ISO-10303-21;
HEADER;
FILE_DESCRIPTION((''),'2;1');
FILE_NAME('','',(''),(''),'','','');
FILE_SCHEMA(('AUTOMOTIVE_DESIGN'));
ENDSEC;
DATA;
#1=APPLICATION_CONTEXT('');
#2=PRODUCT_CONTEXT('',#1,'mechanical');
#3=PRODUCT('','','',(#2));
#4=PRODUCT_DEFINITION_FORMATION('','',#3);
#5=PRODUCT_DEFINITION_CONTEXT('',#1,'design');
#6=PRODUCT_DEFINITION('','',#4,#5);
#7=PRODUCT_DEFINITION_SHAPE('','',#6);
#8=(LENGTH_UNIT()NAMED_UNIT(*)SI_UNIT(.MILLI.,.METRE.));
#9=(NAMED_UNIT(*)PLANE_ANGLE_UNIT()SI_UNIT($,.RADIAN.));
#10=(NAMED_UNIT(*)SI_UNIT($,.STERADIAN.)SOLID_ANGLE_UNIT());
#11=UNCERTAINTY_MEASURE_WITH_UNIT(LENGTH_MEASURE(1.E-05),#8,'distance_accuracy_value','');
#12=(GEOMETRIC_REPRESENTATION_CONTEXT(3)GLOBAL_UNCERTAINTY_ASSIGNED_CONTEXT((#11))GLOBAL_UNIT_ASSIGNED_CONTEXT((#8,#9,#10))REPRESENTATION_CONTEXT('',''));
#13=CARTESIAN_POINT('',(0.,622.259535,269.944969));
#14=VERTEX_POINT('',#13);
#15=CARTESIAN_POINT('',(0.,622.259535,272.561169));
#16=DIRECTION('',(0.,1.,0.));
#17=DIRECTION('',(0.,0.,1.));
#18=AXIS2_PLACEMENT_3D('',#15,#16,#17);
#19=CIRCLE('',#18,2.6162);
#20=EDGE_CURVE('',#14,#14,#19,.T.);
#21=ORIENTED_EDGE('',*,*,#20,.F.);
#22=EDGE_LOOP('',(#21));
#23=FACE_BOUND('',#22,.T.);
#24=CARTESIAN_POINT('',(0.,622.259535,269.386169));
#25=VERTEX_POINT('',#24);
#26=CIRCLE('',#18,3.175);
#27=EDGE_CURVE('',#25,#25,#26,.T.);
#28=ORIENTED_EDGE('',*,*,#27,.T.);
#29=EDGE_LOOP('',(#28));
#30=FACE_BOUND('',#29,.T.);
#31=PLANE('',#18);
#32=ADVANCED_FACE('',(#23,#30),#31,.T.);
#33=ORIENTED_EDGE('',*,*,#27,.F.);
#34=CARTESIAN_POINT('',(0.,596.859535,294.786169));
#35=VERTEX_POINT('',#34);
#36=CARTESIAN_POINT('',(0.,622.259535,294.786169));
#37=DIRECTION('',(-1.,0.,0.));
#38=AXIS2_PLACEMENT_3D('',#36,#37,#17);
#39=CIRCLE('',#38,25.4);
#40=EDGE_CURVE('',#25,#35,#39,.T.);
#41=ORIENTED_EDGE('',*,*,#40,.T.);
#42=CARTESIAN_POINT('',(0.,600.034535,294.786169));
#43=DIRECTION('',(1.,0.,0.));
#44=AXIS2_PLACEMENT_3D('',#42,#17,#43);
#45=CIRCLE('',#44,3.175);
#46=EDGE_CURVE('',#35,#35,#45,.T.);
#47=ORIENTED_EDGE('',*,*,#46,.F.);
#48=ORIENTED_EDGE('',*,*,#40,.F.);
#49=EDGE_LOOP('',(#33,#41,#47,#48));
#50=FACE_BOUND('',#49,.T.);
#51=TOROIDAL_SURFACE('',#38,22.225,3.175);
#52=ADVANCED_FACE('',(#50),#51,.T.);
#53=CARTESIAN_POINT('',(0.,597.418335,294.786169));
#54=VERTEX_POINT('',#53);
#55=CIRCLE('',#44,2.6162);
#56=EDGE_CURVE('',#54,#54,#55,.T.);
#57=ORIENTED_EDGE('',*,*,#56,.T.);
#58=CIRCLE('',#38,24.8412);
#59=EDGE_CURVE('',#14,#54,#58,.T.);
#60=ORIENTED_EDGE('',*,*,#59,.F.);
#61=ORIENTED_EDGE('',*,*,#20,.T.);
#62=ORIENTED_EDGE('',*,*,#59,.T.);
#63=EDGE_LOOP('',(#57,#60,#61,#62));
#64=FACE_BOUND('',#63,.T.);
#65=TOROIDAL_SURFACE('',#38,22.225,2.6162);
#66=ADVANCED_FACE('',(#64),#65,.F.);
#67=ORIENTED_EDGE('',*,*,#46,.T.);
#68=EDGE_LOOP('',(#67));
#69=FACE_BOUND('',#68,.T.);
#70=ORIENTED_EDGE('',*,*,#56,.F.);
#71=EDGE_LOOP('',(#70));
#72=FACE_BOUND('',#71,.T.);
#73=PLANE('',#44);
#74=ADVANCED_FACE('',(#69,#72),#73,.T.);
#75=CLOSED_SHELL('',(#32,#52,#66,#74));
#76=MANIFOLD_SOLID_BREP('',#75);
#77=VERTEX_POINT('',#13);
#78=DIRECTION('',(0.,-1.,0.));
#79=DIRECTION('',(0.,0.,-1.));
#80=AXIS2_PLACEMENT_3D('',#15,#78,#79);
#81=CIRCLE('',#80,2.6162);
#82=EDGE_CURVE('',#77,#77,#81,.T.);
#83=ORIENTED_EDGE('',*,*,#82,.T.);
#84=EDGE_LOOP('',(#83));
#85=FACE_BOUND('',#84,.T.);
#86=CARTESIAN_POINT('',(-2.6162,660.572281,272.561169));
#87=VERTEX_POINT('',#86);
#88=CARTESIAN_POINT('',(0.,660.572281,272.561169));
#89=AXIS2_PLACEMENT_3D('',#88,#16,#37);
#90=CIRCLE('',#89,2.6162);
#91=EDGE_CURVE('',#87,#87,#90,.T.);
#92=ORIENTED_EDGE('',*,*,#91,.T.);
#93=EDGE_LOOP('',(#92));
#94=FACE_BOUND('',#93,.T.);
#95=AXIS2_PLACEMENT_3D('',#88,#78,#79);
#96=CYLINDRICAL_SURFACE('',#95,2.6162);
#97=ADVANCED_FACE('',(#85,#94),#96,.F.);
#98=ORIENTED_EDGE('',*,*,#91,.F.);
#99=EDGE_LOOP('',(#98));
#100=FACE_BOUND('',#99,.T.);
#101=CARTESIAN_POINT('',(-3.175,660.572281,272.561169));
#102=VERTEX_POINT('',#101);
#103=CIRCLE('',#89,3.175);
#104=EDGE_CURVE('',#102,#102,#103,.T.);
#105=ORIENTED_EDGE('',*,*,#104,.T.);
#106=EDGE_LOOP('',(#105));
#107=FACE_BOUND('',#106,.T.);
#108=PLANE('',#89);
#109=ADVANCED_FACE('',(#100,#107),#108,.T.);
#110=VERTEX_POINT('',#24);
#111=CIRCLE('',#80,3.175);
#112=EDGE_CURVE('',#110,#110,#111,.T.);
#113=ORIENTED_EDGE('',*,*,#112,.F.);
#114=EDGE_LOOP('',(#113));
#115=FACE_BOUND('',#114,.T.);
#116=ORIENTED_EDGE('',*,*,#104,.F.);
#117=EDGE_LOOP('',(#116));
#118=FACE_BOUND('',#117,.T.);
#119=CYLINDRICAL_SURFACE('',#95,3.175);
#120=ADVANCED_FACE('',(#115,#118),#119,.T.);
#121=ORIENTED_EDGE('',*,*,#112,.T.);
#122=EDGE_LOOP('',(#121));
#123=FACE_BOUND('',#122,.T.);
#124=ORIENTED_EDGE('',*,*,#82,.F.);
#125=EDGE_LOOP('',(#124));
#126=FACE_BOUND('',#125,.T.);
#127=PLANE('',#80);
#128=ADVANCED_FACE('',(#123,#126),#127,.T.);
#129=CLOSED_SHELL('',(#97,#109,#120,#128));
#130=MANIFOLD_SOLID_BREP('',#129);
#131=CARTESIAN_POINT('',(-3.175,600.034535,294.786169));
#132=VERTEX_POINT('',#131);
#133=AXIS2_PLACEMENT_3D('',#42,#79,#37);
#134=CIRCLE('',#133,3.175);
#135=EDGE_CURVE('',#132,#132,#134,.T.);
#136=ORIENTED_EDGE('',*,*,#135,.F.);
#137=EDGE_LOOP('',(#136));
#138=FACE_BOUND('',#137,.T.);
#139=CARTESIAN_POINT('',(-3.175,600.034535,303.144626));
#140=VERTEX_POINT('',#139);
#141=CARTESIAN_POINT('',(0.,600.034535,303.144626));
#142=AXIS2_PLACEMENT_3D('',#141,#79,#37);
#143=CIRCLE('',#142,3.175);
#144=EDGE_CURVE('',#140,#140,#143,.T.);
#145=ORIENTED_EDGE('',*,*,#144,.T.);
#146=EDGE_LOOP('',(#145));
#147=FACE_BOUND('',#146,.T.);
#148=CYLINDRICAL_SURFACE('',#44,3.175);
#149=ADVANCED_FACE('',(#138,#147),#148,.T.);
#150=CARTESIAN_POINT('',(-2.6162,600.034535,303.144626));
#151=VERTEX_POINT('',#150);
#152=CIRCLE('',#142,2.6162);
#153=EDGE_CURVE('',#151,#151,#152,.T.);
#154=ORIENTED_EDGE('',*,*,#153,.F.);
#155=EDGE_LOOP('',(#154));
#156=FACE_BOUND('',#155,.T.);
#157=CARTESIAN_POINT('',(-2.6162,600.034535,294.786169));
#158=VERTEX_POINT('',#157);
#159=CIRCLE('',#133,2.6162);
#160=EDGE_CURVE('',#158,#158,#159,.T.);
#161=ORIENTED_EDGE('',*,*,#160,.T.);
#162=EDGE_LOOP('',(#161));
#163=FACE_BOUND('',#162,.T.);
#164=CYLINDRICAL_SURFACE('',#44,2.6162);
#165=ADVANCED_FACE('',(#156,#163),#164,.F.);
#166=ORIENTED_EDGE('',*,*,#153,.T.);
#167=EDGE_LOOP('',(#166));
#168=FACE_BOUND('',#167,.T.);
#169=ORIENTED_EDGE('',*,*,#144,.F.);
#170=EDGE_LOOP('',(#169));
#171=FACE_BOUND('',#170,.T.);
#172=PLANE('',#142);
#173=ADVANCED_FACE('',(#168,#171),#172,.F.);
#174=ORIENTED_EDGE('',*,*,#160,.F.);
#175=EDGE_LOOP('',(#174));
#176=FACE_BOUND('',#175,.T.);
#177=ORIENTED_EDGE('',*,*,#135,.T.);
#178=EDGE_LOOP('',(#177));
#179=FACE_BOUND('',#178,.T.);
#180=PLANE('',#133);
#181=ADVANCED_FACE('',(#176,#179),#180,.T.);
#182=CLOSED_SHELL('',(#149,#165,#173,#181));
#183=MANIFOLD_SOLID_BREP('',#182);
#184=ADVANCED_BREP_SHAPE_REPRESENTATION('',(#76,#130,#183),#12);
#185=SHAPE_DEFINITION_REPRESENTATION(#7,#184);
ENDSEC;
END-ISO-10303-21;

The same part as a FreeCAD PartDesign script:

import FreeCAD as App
import Part
import Sketcher

V = App.Vector
Q = App.Units.Quantity

doc = App.newDocument("Part")
params = doc.addObject("Spreadsheet::Sheet", "Params")
for row, (alias, value) in enumerate([
    ("sketch1_diameter", "0.25 in"),
    ("sketch1_diameter2", "0.206 in"),
    ("pad1_length", "8.358457 mm"),
    ("sketch2_diameter", "0.25 in"),
    ("sketch2_diameter2", "0.206 in"),
    ("revolution_angle", "90 deg"),
    ("sketch3_diameter", "0.25 in"),
    ("sketch3_diameter2", "0.206 in"),
    ("pad2_length", "38.312746 mm"),
], start=1):
    params.set(f"A{row}", alias)
    params.set(f"B{row}", "=" + value)
    params.setAlias(f"B{row}", alias)

body = doc.addObject("PartDesign::Body", "Body")

sketch1 = body.newObject("Sketcher::SketchObject", "Sketch")
sketch1.AttachmentSupport = (doc.getObject("XY_Plane"), [""])
sketch1.MapMode = "FlatFace"
sketch1.AttachmentOffset = App.Placement(V(0, 0, 303.144626), App.Rotation())
sketch1.addGeometry([
    Part.Circle(V(0, 600, 0), V(0, 0, 1), 3.2),
    Part.Circle(V(0, 600, 0), V(0, 0, 1), 2.6),
], False)
sketch1.addConstraint([
    Sketcher.Constraint("Coincident", 1, 3, 0, 3),
    Sketcher.Constraint("PointOnObject", 0, 3, -2),
    Sketcher.Constraint("Diameter", 0, Q("0.25 in")),
    Sketcher.Constraint("Diameter", 1, Q("0.206 in")),
    Sketcher.Constraint("DistanceY", -1, 1, 0, 3, 600.034535),
])
sketch1.setExpression("Constraints[2]", "Params.sketch1_diameter")
sketch1.setExpression("Constraints[3]", "Params.sketch1_diameter2")
pad1 = body.newObject("PartDesign::Pad", "Pad")
pad1.Profile = sketch1
pad1.setExpression("Length", "Params.pad1_length")
pad1.Reversed = True
body2 = doc.addObject("PartDesign::Body", "Body001")

sketch2 = body2.newObject("Sketcher::SketchObject", "Sketch001")
sketch2.AttachmentSupport = (doc.getObject("XY_Plane001"), [""])
sketch2.MapMode = "FlatFace"
sketch2.AttachmentOffset = App.Placement(V(0, 0, 294.786169), App.Rotation())
sketch2.addGeometry([
    Part.Circle(V(0, 600, 0), V(0, 0, 1), 3.2),
    Part.Circle(V(0, 600, 0), V(0, 0, 1), 2.6),
], False)
sketch2.addGeometry(Part.LineSegment(V(0, 622.3, 0), V(10, 622.3, 0)), True)
sketch2.addConstraint([
    Sketcher.Constraint("Horizontal", 2),
    Sketcher.Constraint("Coincident", 1, 3, 0, 3),
    Sketcher.Constraint("PointOnObject", 0, 3, -2),
    Sketcher.Constraint("PointOnObject", 2, 1, -2),
    Sketcher.Constraint("Diameter", 0, Q("0.25 in")),
    Sketcher.Constraint("Diameter", 1, Q("0.206 in")),
    Sketcher.Constraint("DistanceY", 0, 3, 2, 1, Q("0.875 in")),
    Sketcher.Constraint("DistanceX", 2, 1, 2, 2, 10.0),
    Sketcher.Constraint("DistanceY", -1, 1, 0, 3, 600.034535),
])
sketch2.setExpression("Constraints[4]", "Params.sketch2_diameter")
sketch2.setExpression("Constraints[5]", "Params.sketch2_diameter2")
revolution = body2.newObject("PartDesign::Revolution", "Revolution")
revolution.Profile = sketch2
revolution.ReferenceAxis = (sketch2, ["Axis0"])
revolution.setExpression("Angle", "Params.revolution_angle")
body3 = doc.addObject("PartDesign::Body", "Body002")

sketch3 = body3.newObject("Sketcher::SketchObject", "Sketch002")
sketch3.AttachmentSupport = (doc.getObject("XZ_Plane002"), [""])
sketch3.MapMode = "FlatFace"
sketch3.AttachmentOffset = App.Placement(V(0, 0, -622.259535), App.Rotation())
sketch3.addGeometry([
    Part.Circle(V(0, 272.6, 0), V(0, 0, 1), 3.2),
    Part.Circle(V(0, 272.6, 0), V(0, 0, 1), 2.6),
], False)
sketch3.addConstraint([
    Sketcher.Constraint("Coincident", 1, 3, 0, 3),
    Sketcher.Constraint("PointOnObject", 0, 3, -2),
    Sketcher.Constraint("Diameter", 0, Q("0.25 in")),
    Sketcher.Constraint("Diameter", 1, Q("0.206 in")),
    Sketcher.Constraint("DistanceY", -1, 1, 0, 3, 272.561169),
])
sketch3.setExpression("Constraints[2]", "Params.sketch3_diameter")
sketch3.setExpression("Constraints[3]", "Params.sketch3_diameter2")
pad2 = body3.newObject("PartDesign::Pad", "Pad001")
pad2.Profile = sketch3
pad2.setExpression("Length", "Params.pad2_length")
pad2.Reversed = True

doc.recompute()
